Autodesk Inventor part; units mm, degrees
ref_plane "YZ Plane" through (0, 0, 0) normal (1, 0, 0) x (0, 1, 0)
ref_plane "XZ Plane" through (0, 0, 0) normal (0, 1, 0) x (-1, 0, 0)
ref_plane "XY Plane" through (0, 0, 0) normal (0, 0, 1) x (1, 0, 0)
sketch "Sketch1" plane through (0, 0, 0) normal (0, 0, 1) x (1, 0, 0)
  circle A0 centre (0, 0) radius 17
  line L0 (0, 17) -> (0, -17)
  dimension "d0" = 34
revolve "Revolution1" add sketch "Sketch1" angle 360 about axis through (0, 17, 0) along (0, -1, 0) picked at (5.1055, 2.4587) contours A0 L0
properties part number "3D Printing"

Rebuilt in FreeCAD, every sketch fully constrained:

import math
import FreeCAD as App
import Part
import Sketcher

V = App.Vector
Q = App.Units.Quantity

doc = App.newDocument("Part")
body = doc.addObject("PartDesign::Body", "Body")

# Sketch on XY plane
sketch1 = body.newObject("Sketcher::SketchObject", "Sketch")
sketch1.AttachmentSupport = (doc.getObject("XY_Plane"), [""])
sketch1.MapMode = "FlatFace"
sketch1.addGeometry(Part.ArcOfCircle(Part.Circle(V(0, 0, 0), V(0, 0, 1), 17), math.radians(-90), math.radians(90)), False)
sketch1.addGeometry(Part.LineSegment(V(0, 17, 0), V(0, -17, 0)), False)
sketch1.addConstraint(Sketcher.Constraint("Coincident", 0, 1, 1, 2))
sketch1.addConstraint(Sketcher.Constraint("Coincident", 1, 1, 0, 2))
sketch1.addConstraint(Sketcher.Constraint("Vertical", 1))
sketch1.addConstraint(Sketcher.Constraint("Coincident", 0, 3, -1, 1))
sketch1.addConstraint(Sketcher.Constraint("PointOnObject", 0, 1, -2))
sketch1.addConstraint(Sketcher.Constraint("Radius", 0, Q("17 mm")))
revolution = body.newObject("PartDesign::Revolution", "Revolution")
revolution.Profile = sketch1
revolution.ReferenceAxis = (sketch1, ["V_Axis"])
revolution.Angle = 360

doc.recompute()
